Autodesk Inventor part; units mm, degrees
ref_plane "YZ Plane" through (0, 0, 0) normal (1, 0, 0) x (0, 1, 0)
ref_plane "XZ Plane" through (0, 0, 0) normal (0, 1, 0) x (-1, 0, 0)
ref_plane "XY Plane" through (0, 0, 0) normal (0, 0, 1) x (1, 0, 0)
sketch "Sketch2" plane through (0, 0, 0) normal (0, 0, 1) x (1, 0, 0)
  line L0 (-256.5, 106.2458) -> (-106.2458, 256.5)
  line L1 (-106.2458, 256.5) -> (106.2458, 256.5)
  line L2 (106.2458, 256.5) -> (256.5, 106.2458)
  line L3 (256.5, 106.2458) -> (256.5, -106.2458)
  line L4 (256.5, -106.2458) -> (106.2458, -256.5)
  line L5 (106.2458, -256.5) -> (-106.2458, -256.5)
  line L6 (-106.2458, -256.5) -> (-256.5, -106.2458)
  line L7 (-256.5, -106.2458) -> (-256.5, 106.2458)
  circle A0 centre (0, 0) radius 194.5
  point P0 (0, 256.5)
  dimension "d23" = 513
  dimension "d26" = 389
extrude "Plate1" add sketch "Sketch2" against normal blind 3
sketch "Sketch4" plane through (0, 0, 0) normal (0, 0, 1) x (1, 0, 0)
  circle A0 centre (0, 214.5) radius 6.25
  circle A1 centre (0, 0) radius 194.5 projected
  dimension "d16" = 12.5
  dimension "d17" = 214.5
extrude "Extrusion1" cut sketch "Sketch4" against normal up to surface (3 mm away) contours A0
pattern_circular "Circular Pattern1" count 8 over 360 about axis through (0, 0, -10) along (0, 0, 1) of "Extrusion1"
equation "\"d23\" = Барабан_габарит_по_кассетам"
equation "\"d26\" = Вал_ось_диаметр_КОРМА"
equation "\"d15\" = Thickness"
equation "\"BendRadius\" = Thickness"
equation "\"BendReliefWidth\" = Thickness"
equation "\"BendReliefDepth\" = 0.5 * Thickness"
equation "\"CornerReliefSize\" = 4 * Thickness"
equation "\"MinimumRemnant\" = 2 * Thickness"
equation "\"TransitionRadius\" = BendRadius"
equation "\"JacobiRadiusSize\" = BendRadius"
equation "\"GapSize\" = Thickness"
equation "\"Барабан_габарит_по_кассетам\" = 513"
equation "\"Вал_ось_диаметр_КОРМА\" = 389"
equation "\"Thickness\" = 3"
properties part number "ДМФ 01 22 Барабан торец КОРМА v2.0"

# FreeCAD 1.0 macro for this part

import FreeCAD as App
import Part
import Sketcher
from FreeCAD import Vector
Q = App.Units.Quantity


def add_polygon(sketch, points):
    """Adds a closed chain of lines whose ends are joined by coincident constraints."""
    first, n = sketch.GeometryCount, len(points)
    for a, b in zip(points, points[1:] + points[:1]):
        sketch.addGeometry(Part.LineSegment(App.Vector(*a, 0), App.Vector(*b, 0)), False)
    for i in range(n):
        sketch.addConstraint(Sketcher.Constraint("Coincident", first + i, 2, first + (i + 1) % n, 1))

doc = App.newDocument("Part")
body = doc.addObject("PartDesign::Body", "Body")

# Sketch on XY plane
sketch1 = body.newObject("Sketcher::SketchObject", "Sketch")
sketch1.AttachmentSupport = (doc.getObject("XY_Plane"), [""])
sketch1.MapMode = "FlatFace"
add_polygon(sketch1, [(-106.2458, 256.5), (-256.5, 106.2458), (-256.5, -106.2458), (-106.2458, -256.5), (106.2458, -256.5), (256.5, -106.2458), (256.5, 106.2458), (106.2458, 256.5)])  # lines 0-7
sketch1.addGeometry(Part.Circle(Vector(0, 0, 0), Vector(0, 0, 1), 194.5), False)  # 8
sketch1.addConstraint([
    Sketcher.Constraint("Vertical", 1),
    Sketcher.Constraint("Horizontal", 3),
    Sketcher.Constraint("Vertical", 5),
    Sketcher.Constraint("Horizontal", 7),
    Sketcher.Constraint("Coincident", 8, 3, -1, 1),
    Sketcher.Constraint("Symmetric", 0, 2, 4, 2, -1, 1),
    Sketcher.Constraint("Symmetric", 2, 2, 6, 2, -1, 1),
    Sketcher.Constraint("Perpendicular", 0, 2),
    Sketcher.Constraint("Perpendicular", 2, 4),
    Sketcher.Constraint("Perpendicular", 4, 6),
    Sketcher.Constraint("Horizontal", 1, 2, 4, 2),
    Sketcher.Constraint("Vertical", 3, 2, 6, 2),
    Sketcher.Constraint("Equal", 7, 1),
    Sketcher.Constraint("Diameter", 8, Q("389 mm")),
    Sketcher.Constraint("DistanceX", 1, 2, 4, 2, Q("513 mm")),
    Sketcher.Constraint("DistanceX", 3, 1, 3, 2, Q("212.4916 mm")),
])
pad1 = body.newObject("PartDesign::Pad", "Pad")
pad1.Profile = sketch1
pad1.Length = 3
pad1.Reversed = True

# Sketch on XY plane
sketch2 = body.newObject("Sketcher::SketchObject", "Sketch001")
sketch2.AttachmentSupport = (doc.getObject("XY_Plane"), [""])
sketch2.MapMode = "FlatFace"
sketch2.addGeometry(Part.Circle(Vector(0, 214.5, 0), Vector(0, 0, 1), 6.25), False)
sketch2.addConstraint([
    Sketcher.Constraint("PointOnObject", 0, 3, -2),
    Sketcher.Constraint("Diameter", 0, Q("12.5 mm")),
    Sketcher.Constraint("DistanceY", -1, 1, 0, 3, Q("214.5 mm")),
])
pocket1 = body.newObject("PartDesign::Pocket", "Pocket")
pocket1.Profile = sketch2
pocket1.Length = 3
doc.recompute()

polarpattern = body.newObject("PartDesign::PolarPattern", "PolarPattern")
polarpattern.Originals = [pocket1]
polarpattern.Axis = (doc.getObject("Z_Axis"), [""])
polarpattern.Angle = 360
polarpattern.Occurrences = 8
body.Tip = polarpattern

doc.recompute()
